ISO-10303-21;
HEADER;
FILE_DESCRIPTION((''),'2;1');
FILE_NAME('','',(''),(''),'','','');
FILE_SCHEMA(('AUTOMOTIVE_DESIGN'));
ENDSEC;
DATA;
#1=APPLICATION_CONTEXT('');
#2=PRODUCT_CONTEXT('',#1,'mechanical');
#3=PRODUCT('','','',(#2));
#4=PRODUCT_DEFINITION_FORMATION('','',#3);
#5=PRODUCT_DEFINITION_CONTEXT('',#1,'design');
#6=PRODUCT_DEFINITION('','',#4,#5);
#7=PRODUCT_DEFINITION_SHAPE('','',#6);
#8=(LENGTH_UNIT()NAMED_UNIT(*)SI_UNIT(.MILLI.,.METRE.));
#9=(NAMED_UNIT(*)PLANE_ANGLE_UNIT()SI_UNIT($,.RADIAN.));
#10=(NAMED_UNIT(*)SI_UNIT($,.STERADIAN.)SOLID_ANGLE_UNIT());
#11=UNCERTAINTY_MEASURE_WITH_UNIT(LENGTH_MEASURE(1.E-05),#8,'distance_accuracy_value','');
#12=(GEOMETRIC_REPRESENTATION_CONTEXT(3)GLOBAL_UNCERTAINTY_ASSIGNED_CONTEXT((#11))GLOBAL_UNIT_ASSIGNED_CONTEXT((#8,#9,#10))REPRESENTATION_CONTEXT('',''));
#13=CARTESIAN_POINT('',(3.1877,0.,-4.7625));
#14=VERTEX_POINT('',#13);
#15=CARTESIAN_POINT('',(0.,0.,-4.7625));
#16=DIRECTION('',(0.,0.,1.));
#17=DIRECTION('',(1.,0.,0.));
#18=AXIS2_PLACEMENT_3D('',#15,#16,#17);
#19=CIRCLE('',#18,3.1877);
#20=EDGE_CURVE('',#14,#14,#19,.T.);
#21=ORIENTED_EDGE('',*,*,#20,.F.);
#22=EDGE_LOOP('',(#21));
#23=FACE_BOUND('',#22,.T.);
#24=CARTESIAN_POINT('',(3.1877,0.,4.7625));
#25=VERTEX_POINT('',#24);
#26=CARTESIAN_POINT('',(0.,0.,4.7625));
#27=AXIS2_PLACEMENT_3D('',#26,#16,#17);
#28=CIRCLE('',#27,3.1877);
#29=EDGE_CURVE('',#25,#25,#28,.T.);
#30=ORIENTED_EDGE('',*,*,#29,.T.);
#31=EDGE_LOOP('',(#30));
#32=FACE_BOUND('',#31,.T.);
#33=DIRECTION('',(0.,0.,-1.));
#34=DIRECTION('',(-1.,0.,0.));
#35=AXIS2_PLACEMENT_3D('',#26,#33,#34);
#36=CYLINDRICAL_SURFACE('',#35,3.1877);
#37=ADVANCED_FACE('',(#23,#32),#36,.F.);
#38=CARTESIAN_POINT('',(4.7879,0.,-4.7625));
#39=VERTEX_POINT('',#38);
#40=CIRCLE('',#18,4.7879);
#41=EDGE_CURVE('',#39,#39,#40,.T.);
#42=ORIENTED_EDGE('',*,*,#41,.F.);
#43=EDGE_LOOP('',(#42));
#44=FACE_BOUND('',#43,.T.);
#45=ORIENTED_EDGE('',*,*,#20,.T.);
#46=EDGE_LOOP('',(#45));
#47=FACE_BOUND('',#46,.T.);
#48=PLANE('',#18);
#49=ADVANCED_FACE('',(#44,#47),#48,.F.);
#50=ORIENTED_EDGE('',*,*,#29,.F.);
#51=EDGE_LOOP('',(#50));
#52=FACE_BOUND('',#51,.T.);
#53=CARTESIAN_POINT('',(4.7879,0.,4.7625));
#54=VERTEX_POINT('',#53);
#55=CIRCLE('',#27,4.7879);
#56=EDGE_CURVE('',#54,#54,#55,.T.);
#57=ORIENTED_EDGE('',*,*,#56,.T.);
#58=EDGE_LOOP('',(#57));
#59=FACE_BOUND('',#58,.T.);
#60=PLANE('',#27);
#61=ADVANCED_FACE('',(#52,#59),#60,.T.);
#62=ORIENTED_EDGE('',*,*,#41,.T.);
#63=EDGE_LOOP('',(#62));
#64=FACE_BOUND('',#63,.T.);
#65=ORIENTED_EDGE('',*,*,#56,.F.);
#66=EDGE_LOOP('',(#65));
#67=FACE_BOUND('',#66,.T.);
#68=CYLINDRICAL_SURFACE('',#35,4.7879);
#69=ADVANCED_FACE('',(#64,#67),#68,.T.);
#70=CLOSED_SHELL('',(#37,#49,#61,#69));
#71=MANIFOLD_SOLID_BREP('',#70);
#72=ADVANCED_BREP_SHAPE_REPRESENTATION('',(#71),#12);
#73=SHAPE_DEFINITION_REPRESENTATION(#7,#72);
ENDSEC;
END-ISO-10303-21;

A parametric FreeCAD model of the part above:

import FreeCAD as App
import Part
import Sketcher
from FreeCAD import Vector
Q = App.Units.Quantity

doc = App.newDocument("Part")
body = doc.addObject("PartDesign::Body", "Body")

# Sketch on XY plane
sketch1 = body.newObject("Sketcher::SketchObject", "Sketch")
sketch1.AttachmentSupport = (doc.getObject("XY_Plane"), [""])
sketch1.MapMode = "FlatFace"
sketch1.addGeometry([
    Part.Circle(Vector(0, 0, 0), Vector(0, 0, 1), 4.7879),
    Part.Circle(Vector(0, 0, 0), Vector(0, 0, 1), 3.1877),
], False)
sketch1.addConstraint([
    Sketcher.Constraint("Coincident", 0, 3, -1, 1),
    Sketcher.Constraint("Coincident", 1, 3, -1, 1),
    Sketcher.Constraint("Diameter", 0, Q("0.377 in")),
    Sketcher.Constraint("Diameter", 1, Q("0.251 in")),
])
pad1 = body.newObject("PartDesign::Pad", "Pad")
pad1.Profile = sketch1
pad1.Length = Q("0.375 in")
pad1.Midplane = True

doc.recompute()
